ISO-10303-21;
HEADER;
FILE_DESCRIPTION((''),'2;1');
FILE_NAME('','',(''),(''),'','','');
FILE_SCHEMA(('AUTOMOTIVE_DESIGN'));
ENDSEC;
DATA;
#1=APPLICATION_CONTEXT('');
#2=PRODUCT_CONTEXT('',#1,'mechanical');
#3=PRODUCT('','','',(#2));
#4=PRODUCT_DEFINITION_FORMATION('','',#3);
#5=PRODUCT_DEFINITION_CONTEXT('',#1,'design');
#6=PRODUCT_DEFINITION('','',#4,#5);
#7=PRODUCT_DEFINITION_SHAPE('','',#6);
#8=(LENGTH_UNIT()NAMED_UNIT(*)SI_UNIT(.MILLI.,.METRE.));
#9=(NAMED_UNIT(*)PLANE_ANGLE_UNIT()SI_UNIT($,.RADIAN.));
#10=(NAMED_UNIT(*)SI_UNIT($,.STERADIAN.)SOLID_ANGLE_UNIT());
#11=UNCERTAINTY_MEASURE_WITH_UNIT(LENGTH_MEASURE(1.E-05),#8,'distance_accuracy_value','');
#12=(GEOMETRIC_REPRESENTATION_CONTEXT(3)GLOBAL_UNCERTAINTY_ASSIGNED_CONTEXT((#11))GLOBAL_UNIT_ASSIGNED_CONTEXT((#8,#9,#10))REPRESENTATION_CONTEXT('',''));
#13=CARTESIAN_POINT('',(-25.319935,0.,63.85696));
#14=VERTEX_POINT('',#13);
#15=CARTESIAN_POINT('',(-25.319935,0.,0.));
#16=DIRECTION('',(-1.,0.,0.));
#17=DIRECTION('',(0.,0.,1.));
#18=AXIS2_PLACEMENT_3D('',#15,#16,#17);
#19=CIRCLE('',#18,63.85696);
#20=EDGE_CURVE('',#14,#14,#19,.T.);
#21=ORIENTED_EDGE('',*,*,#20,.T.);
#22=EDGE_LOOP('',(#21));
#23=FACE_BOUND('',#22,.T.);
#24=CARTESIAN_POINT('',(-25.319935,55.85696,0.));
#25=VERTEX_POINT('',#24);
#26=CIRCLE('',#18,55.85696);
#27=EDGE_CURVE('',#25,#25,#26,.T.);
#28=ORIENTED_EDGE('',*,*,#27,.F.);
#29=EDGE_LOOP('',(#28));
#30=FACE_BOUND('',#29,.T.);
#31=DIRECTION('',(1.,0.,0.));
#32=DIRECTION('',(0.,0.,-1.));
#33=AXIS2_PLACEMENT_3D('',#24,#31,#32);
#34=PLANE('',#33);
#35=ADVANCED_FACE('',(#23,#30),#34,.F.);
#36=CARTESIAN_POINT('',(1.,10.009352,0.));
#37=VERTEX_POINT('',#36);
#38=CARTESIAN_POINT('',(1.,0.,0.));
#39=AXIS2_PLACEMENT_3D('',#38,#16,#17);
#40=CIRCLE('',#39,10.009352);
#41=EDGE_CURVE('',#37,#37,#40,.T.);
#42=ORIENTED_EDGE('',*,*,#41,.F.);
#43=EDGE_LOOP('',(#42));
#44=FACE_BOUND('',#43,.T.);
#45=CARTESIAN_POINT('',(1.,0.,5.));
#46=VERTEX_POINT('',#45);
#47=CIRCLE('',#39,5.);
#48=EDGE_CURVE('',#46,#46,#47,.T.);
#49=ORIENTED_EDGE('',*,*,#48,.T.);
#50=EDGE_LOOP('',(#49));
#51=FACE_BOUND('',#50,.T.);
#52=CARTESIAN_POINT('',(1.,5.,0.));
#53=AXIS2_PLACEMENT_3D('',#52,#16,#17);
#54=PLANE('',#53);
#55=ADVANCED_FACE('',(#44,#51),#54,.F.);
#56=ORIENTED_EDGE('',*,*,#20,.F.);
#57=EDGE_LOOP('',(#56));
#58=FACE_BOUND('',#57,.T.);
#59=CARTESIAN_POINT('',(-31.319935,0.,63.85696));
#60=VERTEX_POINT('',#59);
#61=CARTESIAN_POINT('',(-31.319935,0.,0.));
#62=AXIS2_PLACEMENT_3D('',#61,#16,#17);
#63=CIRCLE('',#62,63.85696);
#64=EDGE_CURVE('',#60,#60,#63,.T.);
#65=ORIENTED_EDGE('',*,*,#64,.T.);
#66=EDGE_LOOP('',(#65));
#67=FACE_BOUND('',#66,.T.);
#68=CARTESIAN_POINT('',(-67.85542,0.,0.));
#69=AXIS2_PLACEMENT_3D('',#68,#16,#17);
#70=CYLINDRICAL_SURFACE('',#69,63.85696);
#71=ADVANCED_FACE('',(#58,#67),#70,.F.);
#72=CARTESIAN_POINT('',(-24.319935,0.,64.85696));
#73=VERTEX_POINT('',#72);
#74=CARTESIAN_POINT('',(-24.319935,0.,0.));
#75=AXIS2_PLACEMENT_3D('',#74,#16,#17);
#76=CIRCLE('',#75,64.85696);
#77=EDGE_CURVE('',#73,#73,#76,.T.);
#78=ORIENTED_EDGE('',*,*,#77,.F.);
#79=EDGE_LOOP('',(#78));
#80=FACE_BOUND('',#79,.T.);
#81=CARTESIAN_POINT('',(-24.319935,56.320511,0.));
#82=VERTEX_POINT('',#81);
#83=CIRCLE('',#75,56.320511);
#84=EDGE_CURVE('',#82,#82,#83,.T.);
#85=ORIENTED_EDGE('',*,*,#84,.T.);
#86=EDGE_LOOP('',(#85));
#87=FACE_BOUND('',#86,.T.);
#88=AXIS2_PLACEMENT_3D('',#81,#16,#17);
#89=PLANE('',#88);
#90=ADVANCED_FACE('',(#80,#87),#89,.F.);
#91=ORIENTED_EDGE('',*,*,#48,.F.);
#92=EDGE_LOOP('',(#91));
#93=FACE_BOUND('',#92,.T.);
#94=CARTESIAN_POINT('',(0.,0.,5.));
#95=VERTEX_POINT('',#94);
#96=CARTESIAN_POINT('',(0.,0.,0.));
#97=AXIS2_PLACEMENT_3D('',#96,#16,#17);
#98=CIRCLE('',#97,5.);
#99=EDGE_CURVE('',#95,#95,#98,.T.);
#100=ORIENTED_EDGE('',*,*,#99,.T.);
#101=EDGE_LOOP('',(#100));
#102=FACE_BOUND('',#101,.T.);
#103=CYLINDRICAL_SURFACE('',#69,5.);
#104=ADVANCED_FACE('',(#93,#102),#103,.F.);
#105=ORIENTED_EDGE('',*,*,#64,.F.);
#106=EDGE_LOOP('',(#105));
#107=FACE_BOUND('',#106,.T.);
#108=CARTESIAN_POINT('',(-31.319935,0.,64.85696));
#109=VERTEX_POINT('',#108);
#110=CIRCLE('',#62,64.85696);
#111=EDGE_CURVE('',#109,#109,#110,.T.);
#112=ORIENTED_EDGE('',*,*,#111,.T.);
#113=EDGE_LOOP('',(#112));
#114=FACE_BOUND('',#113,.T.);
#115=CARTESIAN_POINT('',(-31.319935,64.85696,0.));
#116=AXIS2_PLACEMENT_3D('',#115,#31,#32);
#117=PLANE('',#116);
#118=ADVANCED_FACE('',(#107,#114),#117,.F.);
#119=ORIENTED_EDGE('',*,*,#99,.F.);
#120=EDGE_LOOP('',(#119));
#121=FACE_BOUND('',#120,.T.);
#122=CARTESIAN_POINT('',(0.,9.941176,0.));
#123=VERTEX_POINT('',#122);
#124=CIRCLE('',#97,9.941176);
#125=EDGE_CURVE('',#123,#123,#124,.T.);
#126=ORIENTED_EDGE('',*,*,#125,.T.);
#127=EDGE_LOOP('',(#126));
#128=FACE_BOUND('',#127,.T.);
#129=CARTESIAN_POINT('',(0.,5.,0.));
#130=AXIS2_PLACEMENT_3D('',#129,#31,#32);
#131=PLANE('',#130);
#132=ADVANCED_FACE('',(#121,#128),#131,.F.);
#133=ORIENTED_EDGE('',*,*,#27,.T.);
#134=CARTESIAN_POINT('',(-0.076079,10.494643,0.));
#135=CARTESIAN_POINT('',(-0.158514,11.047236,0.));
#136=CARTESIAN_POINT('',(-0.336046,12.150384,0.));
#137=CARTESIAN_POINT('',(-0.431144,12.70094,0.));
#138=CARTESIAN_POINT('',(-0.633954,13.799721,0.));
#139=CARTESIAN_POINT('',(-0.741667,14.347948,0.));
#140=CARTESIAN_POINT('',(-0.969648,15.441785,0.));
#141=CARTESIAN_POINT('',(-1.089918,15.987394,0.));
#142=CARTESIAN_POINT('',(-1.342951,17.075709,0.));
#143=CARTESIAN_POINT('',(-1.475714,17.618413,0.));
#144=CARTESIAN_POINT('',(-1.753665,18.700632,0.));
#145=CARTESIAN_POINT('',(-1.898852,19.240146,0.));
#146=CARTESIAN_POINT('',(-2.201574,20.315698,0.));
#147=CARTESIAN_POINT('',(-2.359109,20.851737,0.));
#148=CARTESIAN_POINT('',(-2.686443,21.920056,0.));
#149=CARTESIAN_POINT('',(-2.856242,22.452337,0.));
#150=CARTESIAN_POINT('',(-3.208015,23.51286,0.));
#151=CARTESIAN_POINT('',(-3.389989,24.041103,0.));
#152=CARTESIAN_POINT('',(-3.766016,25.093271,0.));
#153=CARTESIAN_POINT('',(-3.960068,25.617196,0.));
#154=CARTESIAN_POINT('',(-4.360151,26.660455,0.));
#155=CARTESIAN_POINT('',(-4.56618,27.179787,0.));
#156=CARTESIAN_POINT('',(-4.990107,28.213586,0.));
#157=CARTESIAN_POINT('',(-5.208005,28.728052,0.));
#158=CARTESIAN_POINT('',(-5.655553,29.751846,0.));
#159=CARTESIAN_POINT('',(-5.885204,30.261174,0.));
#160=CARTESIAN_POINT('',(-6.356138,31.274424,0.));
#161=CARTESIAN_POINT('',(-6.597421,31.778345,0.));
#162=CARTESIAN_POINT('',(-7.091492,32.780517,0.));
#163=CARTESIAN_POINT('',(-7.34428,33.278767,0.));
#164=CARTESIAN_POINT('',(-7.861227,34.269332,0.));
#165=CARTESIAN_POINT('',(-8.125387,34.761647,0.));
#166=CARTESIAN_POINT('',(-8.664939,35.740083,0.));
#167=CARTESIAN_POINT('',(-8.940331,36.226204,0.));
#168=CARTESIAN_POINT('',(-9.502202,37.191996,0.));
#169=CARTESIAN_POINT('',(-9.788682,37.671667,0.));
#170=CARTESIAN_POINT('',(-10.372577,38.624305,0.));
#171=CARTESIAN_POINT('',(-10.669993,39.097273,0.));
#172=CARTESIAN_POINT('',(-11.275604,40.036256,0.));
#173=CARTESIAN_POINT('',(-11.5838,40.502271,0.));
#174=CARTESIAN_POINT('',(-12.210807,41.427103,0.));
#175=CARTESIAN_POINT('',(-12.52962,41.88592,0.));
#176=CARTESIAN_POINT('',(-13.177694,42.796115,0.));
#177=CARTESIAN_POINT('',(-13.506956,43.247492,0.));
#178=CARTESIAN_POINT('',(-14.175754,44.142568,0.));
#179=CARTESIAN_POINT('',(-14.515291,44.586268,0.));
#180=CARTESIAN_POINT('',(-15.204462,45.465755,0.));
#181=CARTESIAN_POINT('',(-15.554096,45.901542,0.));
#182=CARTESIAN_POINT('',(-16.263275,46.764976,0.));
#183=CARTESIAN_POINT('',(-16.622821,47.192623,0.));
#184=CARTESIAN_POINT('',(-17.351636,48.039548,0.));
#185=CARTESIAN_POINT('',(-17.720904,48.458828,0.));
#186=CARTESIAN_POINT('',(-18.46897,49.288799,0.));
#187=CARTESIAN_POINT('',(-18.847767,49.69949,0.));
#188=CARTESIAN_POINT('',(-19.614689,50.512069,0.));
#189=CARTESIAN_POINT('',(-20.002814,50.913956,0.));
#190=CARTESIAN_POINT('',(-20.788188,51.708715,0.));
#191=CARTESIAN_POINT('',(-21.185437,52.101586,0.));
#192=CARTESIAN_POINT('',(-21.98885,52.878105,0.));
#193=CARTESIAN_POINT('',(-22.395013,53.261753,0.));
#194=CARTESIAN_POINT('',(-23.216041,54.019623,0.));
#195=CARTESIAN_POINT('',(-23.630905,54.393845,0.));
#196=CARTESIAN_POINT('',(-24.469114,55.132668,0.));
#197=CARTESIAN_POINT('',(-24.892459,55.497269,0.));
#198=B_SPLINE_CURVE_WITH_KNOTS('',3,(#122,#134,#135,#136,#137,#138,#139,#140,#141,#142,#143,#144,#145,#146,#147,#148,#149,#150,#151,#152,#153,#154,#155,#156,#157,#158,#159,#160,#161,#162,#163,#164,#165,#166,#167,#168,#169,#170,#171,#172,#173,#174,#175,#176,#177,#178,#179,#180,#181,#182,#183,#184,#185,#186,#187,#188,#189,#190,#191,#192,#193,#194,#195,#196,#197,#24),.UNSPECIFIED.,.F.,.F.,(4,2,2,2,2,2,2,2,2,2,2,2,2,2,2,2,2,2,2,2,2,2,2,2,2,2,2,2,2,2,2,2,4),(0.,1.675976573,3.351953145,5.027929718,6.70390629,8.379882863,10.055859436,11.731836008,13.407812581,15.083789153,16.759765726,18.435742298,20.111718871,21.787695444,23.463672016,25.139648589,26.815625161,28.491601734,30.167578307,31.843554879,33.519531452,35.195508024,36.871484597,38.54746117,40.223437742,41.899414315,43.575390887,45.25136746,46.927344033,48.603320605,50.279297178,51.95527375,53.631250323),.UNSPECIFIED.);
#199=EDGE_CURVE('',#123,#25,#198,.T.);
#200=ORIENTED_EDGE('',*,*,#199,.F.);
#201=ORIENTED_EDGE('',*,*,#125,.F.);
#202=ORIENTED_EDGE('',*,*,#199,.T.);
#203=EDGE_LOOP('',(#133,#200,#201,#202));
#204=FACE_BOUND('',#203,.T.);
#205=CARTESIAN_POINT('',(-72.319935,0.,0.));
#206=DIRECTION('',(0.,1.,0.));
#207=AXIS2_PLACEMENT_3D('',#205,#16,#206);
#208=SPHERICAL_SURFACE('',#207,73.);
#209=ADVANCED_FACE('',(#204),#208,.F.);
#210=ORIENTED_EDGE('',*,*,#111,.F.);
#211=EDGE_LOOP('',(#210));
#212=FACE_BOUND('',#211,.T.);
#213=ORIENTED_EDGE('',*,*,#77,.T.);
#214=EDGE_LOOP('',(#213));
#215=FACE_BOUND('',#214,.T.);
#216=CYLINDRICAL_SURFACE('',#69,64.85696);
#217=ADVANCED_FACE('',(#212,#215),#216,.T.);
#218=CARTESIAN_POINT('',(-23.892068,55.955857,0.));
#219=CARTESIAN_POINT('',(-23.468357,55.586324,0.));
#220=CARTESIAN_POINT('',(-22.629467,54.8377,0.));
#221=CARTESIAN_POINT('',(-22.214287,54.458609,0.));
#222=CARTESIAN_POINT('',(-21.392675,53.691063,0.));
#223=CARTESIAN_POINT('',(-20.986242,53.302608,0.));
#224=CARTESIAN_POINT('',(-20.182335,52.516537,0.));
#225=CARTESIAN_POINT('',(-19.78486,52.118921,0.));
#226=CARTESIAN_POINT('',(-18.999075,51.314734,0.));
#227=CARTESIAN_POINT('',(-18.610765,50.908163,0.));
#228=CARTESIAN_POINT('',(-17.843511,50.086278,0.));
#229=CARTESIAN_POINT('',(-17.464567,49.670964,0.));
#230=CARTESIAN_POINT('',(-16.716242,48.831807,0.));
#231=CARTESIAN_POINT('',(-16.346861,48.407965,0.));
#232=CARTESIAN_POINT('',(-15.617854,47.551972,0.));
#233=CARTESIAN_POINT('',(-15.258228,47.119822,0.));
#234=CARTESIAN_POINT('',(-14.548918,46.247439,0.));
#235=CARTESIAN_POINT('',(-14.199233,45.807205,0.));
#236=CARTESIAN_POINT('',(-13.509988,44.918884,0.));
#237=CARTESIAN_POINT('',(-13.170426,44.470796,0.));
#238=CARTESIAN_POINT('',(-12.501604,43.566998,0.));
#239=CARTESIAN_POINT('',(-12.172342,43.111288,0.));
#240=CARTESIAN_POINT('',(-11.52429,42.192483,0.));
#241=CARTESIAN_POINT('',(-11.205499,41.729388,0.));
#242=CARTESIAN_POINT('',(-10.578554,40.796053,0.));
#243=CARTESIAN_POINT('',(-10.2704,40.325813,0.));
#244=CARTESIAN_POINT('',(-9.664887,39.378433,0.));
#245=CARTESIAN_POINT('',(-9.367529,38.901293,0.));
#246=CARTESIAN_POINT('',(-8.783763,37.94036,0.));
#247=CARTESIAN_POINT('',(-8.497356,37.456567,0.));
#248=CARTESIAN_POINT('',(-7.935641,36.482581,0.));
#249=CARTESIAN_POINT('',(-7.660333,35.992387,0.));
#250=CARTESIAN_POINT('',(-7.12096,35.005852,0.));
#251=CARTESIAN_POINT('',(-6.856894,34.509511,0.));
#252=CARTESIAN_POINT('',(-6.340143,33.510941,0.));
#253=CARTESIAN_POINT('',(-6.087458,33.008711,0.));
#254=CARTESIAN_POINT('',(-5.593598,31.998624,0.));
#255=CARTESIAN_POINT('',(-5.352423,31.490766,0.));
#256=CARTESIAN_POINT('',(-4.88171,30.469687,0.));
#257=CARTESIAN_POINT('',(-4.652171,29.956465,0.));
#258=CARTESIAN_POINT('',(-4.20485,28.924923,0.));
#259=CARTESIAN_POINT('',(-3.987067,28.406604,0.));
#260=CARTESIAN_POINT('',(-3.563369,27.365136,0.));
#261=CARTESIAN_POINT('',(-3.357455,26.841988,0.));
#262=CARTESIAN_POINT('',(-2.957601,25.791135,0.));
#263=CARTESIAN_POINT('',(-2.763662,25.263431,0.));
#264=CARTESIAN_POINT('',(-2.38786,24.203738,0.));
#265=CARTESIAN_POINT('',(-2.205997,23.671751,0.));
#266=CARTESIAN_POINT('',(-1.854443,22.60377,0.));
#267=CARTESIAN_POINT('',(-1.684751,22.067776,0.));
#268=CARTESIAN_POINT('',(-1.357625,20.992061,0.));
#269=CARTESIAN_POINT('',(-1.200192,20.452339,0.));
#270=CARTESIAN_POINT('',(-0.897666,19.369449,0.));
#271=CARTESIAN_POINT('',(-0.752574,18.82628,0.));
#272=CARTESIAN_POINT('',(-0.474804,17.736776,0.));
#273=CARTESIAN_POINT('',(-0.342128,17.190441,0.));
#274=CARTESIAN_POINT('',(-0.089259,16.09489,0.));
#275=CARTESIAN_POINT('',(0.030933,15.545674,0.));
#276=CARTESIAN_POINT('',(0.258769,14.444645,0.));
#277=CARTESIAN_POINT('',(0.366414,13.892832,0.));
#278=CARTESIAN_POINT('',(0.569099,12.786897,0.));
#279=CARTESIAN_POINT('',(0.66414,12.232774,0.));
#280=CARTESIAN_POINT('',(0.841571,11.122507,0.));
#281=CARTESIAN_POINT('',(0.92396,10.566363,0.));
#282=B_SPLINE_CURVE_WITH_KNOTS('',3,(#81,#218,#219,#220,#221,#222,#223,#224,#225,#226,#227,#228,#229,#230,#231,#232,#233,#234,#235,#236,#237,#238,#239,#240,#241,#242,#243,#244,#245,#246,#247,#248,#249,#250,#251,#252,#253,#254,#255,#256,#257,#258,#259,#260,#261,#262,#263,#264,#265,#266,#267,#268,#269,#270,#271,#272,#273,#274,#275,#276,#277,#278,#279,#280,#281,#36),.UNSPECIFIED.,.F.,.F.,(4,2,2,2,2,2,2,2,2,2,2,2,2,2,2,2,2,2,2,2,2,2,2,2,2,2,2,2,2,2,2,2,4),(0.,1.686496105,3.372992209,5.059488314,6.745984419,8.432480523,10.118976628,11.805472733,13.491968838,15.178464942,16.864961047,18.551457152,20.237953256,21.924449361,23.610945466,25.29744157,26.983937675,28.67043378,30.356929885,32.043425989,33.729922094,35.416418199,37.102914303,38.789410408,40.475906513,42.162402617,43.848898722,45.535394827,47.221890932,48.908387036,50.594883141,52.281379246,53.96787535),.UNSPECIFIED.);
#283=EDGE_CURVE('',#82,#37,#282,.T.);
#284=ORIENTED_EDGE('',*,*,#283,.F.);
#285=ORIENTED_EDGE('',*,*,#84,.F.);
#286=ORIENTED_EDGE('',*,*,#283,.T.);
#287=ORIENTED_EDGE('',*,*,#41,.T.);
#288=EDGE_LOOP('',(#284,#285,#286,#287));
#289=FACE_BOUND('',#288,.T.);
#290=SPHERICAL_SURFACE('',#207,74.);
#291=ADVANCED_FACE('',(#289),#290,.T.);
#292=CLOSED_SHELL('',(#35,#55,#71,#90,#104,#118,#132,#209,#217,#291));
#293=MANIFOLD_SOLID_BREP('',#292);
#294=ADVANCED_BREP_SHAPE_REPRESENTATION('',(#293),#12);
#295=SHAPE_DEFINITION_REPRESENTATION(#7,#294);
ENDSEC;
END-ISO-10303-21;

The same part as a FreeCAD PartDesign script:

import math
import FreeCAD as App
import Part
import Sketcher
from FreeCAD import Vector

doc = App.newDocument("Part")
body = doc.addObject("PartDesign::Body", "Body")

# Sketch on XY plane
sketch1 = body.newObject("Sketcher::SketchObject", "Sketch")
sketch1.AttachmentSupport = (doc.getObject("XY_Plane"), [""])
sketch1.MapMode = "FlatFace"
sketch1.addGeometry([
    Part.LineSegment(Vector(-31.3, 63.9, 0), Vector(-25.3, 63.9, 0)),  # 0
    Part.LineSegment(Vector(-25.3, 63.9, 0), Vector(-25.3, 55.9, 0)),  # 1
    Part.ArcOfCircle(Part.Circle(Vector(-72.3, 0, 0), Vector(0, 0, 1), 73), math.radians(8), math.radians(50)),  # 2
    Part.LineSegment(Vector(0, 9.9, 0), Vector(0, 5, 0)),  # 3
    Part.LineSegment(Vector(0, 5, 0), Vector(1, 5, 0)),  # 4
    Part.LineSegment(Vector(1, 5, 0), Vector(1, 10, 0)),  # 5
    Part.ArcOfCircle(Part.Circle(Vector(-72.3, 0, 0), Vector(0, 0, 1), 74), math.radians(8), math.radians(50)),  # 6
    Part.LineSegment(Vector(-24.3, 56.3, 0), Vector(-24.3, 64.9, 0)),  # 7
    Part.LineSegment(Vector(-24.3, 64.9, 0), Vector(-31.3, 64.9, 0)),  # 8
    Part.LineSegment(Vector(-31.3, 64.9, 0), Vector(-31.3, 63.9, 0)),  # 9
], False)
sketch1.addConstraint([
    Sketcher.Constraint("Coincident", 0, 2, 1, 1),
    Sketcher.Constraint("Coincident", 1, 2, 2, 2),
    Sketcher.Constraint("Coincident", 2, 1, 3, 1),
    Sketcher.Constraint("Coincident", 3, 2, 4, 1),
    Sketcher.Constraint("Coincident", 4, 2, 5, 1),
    Sketcher.Constraint("Coincident", 5, 2, 6, 1),
    Sketcher.Constraint("Coincident", 6, 2, 7, 1),
    Sketcher.Constraint("Coincident", 7, 2, 8, 1),
    Sketcher.Constraint("Coincident", 8, 2, 9, 1),
    Sketcher.Constraint("Coincident", 9, 2, 0, 1),
    Sketcher.Constraint("Horizontal", 0),
    Sketcher.Constraint("Vertical", 1),
    Sketcher.Constraint("Vertical", 3),
    Sketcher.Constraint("Horizontal", 4),
    Sketcher.Constraint("Vertical", 5),
    Sketcher.Constraint("Vertical", 7),
    Sketcher.Constraint("Horizontal", 8),
    Sketcher.Constraint("Vertical", 9),
    Sketcher.Constraint("Coincident", 6, 3, 2, 3),
    Sketcher.Constraint("PointOnObject", 2, 3, -1),
    Sketcher.Constraint("PointOnObject", 2, 1, -2),
    Sketcher.Constraint("Equal", 4, 9),
    Sketcher.Constraint("Radius", 2, 73.0),
    Sketcher.Constraint("Radius", 6, 74.0),
    Sketcher.Constraint("DistanceX", 0, 1, 0, 2, 6.0),
    Sketcher.Constraint("DistanceX", 4, 1, 4, 2, 1.0),
    Sketcher.Constraint("DistanceX", 8, 2, 8, 1, 7.0),
    Sketcher.Constraint("DistanceY", 1, 2, 1, 1, 8.0),
    Sketcher.Constraint("DistanceY", -1, 1, 3, 2, 5.0),
    Sketcher.Constraint("DistanceX", 6, 3, 0, 2, 47.0),
    Sketcher.Constraint("DistanceY", 5, 1, 5, 2, 5.009352),
])
revolution = body.newObject("PartDesign::Revolution", "Revolution")
revolution.Profile = sketch1
revolution.ReferenceAxis = (sketch1, ["H_Axis"])
revolution.Angle = 360

doc.recompute()
